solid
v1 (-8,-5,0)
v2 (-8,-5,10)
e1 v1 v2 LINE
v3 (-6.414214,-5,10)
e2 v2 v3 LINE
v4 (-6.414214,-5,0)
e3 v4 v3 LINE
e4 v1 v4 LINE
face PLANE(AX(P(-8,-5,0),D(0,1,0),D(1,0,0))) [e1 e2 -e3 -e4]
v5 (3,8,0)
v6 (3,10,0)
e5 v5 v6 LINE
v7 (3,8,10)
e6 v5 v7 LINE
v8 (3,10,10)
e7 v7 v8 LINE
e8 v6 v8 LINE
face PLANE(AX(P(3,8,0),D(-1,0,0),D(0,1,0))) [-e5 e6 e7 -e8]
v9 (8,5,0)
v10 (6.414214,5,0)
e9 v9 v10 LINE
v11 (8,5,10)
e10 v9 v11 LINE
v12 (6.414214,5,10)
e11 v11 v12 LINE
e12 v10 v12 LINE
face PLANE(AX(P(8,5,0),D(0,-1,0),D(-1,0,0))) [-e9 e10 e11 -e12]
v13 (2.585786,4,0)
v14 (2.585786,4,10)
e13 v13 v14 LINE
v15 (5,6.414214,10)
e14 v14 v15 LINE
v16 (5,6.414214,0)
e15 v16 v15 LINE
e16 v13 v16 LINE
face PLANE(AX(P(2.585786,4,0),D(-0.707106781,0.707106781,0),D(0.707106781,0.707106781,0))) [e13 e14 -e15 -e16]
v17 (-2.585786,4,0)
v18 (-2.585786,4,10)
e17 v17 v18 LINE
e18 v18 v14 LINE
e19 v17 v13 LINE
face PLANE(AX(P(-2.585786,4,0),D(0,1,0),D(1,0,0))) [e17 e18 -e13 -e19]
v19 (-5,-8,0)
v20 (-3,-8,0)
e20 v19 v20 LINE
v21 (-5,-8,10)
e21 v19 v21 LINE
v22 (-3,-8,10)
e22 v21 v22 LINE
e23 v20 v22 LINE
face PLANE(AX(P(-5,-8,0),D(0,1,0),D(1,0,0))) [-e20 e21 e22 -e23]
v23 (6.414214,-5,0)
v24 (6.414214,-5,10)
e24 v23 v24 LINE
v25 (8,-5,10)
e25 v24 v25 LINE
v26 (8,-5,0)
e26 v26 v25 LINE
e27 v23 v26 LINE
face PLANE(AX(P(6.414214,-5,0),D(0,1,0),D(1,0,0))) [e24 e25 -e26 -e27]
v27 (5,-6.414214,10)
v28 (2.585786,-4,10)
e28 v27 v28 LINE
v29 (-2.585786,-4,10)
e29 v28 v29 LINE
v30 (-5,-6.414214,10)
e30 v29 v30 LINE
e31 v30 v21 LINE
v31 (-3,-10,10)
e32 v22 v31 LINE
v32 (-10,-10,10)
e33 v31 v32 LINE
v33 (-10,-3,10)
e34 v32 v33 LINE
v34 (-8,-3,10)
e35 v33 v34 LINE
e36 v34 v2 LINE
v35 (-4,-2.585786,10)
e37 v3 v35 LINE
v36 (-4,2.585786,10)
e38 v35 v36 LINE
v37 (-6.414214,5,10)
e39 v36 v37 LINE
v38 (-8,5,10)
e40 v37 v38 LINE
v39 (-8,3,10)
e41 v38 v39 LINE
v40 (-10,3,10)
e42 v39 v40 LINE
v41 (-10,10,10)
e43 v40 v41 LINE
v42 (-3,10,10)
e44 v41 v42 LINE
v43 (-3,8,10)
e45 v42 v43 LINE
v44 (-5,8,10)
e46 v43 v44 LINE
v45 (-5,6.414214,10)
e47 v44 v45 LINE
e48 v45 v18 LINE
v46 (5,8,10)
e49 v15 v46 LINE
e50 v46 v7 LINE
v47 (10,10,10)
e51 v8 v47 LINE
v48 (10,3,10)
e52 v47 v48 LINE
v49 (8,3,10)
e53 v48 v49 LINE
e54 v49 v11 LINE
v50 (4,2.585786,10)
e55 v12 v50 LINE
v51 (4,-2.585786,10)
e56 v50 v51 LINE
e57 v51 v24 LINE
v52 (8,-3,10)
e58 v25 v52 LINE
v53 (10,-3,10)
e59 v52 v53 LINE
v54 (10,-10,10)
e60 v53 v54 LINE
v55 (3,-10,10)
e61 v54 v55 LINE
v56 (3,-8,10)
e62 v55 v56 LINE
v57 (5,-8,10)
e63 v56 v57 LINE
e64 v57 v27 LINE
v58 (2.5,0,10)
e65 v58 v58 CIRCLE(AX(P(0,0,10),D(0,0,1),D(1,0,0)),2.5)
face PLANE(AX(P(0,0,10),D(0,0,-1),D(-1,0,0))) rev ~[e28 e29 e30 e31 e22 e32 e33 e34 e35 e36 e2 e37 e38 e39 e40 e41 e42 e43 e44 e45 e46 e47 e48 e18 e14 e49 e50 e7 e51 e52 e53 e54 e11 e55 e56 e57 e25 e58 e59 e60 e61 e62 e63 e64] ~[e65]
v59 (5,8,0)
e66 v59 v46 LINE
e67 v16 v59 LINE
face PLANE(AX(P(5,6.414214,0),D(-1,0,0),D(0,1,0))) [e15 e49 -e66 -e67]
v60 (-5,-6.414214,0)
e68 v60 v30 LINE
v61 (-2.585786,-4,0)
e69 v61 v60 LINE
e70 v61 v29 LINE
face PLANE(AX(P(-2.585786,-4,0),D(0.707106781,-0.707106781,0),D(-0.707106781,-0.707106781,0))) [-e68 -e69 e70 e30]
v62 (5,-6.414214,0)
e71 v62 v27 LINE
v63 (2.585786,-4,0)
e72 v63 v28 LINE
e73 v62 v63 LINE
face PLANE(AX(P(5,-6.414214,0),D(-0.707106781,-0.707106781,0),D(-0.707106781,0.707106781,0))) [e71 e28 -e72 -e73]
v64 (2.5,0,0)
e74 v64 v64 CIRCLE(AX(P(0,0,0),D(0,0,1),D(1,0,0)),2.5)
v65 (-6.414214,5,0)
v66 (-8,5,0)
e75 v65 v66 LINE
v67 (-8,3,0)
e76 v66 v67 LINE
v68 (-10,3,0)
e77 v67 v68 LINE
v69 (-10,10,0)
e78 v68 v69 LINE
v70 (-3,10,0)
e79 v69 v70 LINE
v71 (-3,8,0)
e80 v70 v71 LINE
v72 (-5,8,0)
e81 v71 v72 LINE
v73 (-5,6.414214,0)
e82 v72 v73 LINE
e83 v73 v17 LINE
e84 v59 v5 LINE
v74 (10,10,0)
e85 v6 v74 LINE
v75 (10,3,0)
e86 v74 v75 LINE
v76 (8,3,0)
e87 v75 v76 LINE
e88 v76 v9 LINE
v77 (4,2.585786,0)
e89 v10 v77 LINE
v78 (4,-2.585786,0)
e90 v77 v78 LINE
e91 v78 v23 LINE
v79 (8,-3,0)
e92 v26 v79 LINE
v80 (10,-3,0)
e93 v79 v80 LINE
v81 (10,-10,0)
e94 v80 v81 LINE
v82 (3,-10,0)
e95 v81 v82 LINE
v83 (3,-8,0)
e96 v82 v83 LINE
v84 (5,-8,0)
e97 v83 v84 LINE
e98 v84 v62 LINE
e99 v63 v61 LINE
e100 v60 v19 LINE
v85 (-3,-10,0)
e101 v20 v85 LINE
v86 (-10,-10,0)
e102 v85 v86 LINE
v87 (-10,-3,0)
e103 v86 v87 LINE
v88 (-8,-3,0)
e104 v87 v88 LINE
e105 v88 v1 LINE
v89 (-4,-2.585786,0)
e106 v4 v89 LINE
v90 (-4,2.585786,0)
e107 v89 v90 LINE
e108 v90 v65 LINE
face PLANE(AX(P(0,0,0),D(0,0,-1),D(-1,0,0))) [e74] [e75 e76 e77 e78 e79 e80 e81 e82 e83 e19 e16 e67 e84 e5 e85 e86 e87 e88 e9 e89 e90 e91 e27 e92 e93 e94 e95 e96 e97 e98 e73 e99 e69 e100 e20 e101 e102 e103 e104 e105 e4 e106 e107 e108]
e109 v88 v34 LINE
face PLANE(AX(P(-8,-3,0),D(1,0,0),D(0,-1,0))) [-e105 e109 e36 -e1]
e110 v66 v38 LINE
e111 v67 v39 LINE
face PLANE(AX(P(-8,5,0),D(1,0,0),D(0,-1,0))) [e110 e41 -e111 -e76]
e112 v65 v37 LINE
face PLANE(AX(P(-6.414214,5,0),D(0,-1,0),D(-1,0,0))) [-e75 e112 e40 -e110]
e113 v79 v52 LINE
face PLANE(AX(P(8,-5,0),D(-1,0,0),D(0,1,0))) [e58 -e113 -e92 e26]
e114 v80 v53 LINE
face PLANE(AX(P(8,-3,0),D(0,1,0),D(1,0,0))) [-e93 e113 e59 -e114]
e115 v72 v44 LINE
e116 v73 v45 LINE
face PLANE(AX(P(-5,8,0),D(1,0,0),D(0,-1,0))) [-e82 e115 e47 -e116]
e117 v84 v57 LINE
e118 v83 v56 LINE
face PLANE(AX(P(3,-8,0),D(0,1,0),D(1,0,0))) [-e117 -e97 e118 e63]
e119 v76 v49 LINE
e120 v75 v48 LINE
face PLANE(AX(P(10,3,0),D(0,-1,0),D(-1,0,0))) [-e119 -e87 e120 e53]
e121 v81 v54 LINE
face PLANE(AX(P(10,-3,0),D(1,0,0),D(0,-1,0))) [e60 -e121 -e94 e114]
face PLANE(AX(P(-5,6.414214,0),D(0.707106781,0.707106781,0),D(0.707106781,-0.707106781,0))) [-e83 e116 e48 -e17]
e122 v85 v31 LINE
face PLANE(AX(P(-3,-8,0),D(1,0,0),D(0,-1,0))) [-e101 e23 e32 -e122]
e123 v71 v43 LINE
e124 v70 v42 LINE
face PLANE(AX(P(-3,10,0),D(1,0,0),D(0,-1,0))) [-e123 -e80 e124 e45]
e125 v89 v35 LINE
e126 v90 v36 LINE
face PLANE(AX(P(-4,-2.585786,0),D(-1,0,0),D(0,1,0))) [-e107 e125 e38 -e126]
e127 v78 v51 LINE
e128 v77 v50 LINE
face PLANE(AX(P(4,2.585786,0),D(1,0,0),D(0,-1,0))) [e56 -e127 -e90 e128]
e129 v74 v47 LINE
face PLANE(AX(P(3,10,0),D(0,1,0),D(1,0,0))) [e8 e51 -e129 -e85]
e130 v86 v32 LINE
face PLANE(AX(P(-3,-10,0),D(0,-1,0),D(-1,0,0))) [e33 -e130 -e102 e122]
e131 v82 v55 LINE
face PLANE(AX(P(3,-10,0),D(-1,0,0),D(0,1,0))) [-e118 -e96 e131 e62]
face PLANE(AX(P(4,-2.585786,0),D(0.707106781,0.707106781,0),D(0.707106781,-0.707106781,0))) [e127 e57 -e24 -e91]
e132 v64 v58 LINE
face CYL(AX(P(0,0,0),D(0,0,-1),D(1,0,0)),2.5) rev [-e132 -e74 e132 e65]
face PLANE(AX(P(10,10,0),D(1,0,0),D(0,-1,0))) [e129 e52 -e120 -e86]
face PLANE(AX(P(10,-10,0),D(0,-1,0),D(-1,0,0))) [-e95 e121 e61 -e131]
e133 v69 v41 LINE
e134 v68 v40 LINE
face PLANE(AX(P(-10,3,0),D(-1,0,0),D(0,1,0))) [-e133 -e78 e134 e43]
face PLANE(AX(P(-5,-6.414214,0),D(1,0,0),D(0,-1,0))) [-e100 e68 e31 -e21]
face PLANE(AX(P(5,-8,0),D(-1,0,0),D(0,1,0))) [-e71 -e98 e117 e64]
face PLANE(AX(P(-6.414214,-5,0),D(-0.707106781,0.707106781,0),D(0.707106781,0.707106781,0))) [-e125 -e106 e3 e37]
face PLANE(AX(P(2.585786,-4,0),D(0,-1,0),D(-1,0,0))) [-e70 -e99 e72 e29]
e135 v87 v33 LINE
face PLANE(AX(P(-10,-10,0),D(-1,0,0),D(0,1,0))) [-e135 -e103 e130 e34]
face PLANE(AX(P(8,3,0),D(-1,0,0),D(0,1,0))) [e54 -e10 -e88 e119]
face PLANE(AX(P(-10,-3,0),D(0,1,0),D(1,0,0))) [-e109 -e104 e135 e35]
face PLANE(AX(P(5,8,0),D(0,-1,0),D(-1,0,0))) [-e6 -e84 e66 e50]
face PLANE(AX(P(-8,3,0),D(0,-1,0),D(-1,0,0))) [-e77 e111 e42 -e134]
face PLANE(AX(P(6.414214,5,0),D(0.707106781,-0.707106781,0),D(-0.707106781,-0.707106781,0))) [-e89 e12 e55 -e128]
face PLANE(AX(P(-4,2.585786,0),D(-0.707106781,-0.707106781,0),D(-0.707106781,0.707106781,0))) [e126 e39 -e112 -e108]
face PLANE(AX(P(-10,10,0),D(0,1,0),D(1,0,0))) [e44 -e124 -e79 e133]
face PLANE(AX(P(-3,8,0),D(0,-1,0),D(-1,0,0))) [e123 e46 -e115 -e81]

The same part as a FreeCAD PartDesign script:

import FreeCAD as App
import Part
import Sketcher
from FreeCAD import Vector


def add_polygon(sketch, points):
    """Adds a closed chain of lines whose ends are joined by coincident constraints."""
    first, n = sketch.GeometryCount, len(points)
    for a, b in zip(points, points[1:] + points[:1]):
        sketch.addGeometry(Part.LineSegment(App.Vector(*a, 0), App.Vector(*b, 0)), False)
    for i in range(n):
        sketch.addConstraint(Sketcher.Constraint("Coincident", first + i, 2, first + (i + 1) % n, 1))

doc = App.newDocument("Part")
body = doc.addObject("PartDesign::Body", "Body")

# Sketch on XY plane
sketch1 = body.newObject("Sketcher::SketchObject", "Sketch")
sketch1.AttachmentSupport = (doc.getObject("XY_Plane"), [""])
sketch1.MapMode = "FlatFace"
add_polygon(sketch1, [(3, -8), (3, -10), (10, -10), (10, -3), (8, -3), (8, -5), (6.4, -5), (4, -2.6), (4, 2.6), (6.4, 5), (8, 5), (8, 3), (10, 3), (10, 10), (3, 10), (3, 8), (5, 8), (5, 6.4), (2.6, 4), (-2.6, 4), (-5, 6.4), (-5, 8), (-3, 8), (-3, 10), (-10, 10), (-10, 3), (-8, 3), (-8, 5), (-6.4, 5), (-4, 2.6), (-4, -2.6), (-6.4, -5), (-8, -5), (-8, -3), (-10, -3), (-10, -10), (-3, -10), (-3, -8), (-5, -8), (-5, -6.4), (-2.6, -4), (2.6, -4), (5, -6.4), (5, -8)])  # lines 0-43
sketch1.addGeometry(Part.Circle(Vector(0, 0, 0), Vector(0, 0, 1), 2.5), False)  # 44
sketch1.addConstraint(Sketcher.Constraint("Vertical", 0))
sketch1.addConstraint(Sketcher.Constraint("Horizontal", 1))
sketch1.addConstraint(Sketcher.Constraint("Vertical", 2))
sketch1.addConstraint(Sketcher.Constraint("Horizontal", 3))
sketch1.addConstraint(Sketcher.Constraint("Vertical", 4))
sketch1.addConstraint(Sketcher.Constraint("Horizontal", 5))
sketch1.addConstraint(Sketcher.Constraint("Vertical", 7))
sketch1.addConstraint(Sketcher.Constraint("Horizontal", 9))
sketch1.addConstraint(Sketcher.Constraint("Vertical", 10))
sketch1.addConstraint(Sketcher.Constraint("Horizontal", 11))
sketch1.addConstraint(Sketcher.Constraint("Vertical", 12))
sketch1.addConstraint(Sketcher.Constraint("Horizontal", 13))
sketch1.addConstraint(Sketcher.Constraint("Vertical", 14))
sketch1.addConstraint(Sketcher.Constraint("Horizontal", 15))
sketch1.addConstraint(Sketcher.Constraint("Vertical", 16))
sketch1.addConstraint(Sketcher.Constraint("Horizontal", 18))
sketch1.addConstraint(Sketcher.Constraint("Vertical", 20))
sketch1.addConstraint(Sketcher.Constraint("Horizontal", 21))
sketch1.addConstraint(Sketcher.Constraint("Vertical", 22))
sketch1.addConstraint(Sketcher.Constraint("Horizontal", 23))
sketch1.addConstraint(Sketcher.Constraint("Vertical", 24))
sketch1.addConstraint(Sketcher.Constraint("Horizontal", 25))
sketch1.addConstraint(Sketcher.Constraint("Vertical", 26))
sketch1.addConstraint(Sketcher.Constraint("Horizontal", 27))
sketch1.addConstraint(Sketcher.Constraint("Vertical", 29))
sketch1.addConstraint(Sketcher.Constraint("Horizontal", 31))
sketch1.addConstraint(Sketcher.Constraint("Vertical", 32))
sketch1.addConstraint(Sketcher.Constraint("Horizontal", 33))
sketch1.addConstraint(Sketcher.Constraint("Vertical", 34))
sketch1.addConstraint(Sketcher.Constraint("Horizontal", 35))
sketch1.addConstraint(Sketcher.Constraint("Vertical", 36))
sketch1.addConstraint(Sketcher.Constraint("Horizontal", 37))
sketch1.addConstraint(Sketcher.Constraint("Vertical", 38))
sketch1.addConstraint(Sketcher.Constraint("Horizontal", 40))
sketch1.addConstraint(Sketcher.Constraint("Vertical", 42))
sketch1.addConstraint(Sketcher.Constraint("Horizontal", 43))
sketch1.addConstraint(Sketcher.Constraint("Coincident", 44, 3, -1, 1))
sketch1.addConstraint(Sketcher.Constraint("Symmetric", 0, 2, 22, 2, -1, 1))
sketch1.addConstraint(Sketcher.Constraint("Symmetric", 2, 2, 24, 2, -1, 1))
sketch1.addConstraint(Sketcher.Constraint("Symmetric", 4, 2, 26, 2, -1, 1))
sketch1.addConstraint(Sketcher.Constraint("Symmetric", 6, 2, 28, 2, -1, 1))
sketch1.addConstraint(Sketcher.Constraint("Symmetric", 8, 2, 30, 2, -1, 1))
sketch1.addConstraint(Sketcher.Constraint("Symmetric", 10, 2, 32, 2, -1, 1))
sketch1.addConstraint(Sketcher.Constraint("Symmetric", 12, 2, 34, 2, -1, 1))
sketch1.addConstraint(Sketcher.Constraint("Symmetric", 14, 2, 36, 2, -1, 1))
sketch1.addConstraint(Sketcher.Constraint("Symmetric", 16, 2, 38, 2, -1, 1))
sketch1.addConstraint(Sketcher.Constraint("Symmetric", 17, 2, 39, 2, -1, 1))
sketch1.addConstraint(Sketcher.Constraint("Symmetric", 19, 2, 41, 2, -1, 1))
sketch1.addConstraint(Sketcher.Constraint("Symmetric", 16, 2, 19, 2, -2))
sketch1.addConstraint(Sketcher.Constraint("Symmetric", 14, 2, 21, 2, -2))
sketch1.addConstraint(Sketcher.Constraint("Symmetric", 12, 2, 23, 2, -2))
sketch1.addConstraint(Sketcher.Constraint("Symmetric", 10, 2, 25, 2, -2))
sketch1.addConstraint(Sketcher.Constraint("Symmetric", 8, 2, 27, 2, -2))
sketch1.addConstraint(Sketcher.Constraint("Perpendicular", 6, 8))
sketch1.addConstraint(Sketcher.Constraint("Parallel", 8, 17))
sketch1.addConstraint(Sketcher.Constraint("Perpendicular", 17, 19))
sketch1.addConstraint(Sketcher.Constraint("Parallel", 19, 28))
sketch1.addConstraint(Sketcher.Constraint("Perpendicular", 28, 30))
sketch1.addConstraint(Sketcher.Constraint("Perpendicular", 39, 41))
sketch1.addConstraint(Sketcher.Constraint("Horizontal", 7, 2, 28, 2))
sketch1.addConstraint(Sketcher.Constraint("Horizontal", 37, 2, 42, 2))
sketch1.addConstraint(Sketcher.Constraint("Equal", 11, 15))
sketch1.addConstraint(Sketcher.Constraint("Equal", 43, 0))
sketch1.addConstraint(Sketcher.Constraint("Equal", 35, 2))
sketch1.addConstraint(Sketcher.Constraint("Equal", 0, 4))
sketch1.addConstraint(Sketcher.Constraint("Equal", 40, 7))
sketch1.addConstraint(Sketcher.Constraint("Equal", 31, 16))
sketch1.addConstraint(Sketcher.Constraint("Equal", 8, 17))
sketch1.addConstraint(Sketcher.Constraint("Diameter", 44, 5.0))
sketch1.addConstraint(Sketcher.Constraint("DistanceX", 1, 1, 1, 2, 7.0))
sketch1.addConstraint(Sketcher.Constraint("DistanceX", 3, 2, 3, 1, 2.0))
sketch1.addConstraint(Sketcher.Constraint("DistanceX", -1, 1, 0, 2, 3.0))
sketch1.addConstraint(Sketcher.Constraint("DistanceX", -1, 1, 6, 2, 4.0))
sketch1.addConstraint(Sketcher.Constraint("DistanceX", 5, 2, 5, 1, 1.585786))
pad1 = body.newObject("PartDesign::Pad", "Pad")
pad1.Profile = sketch1
pad1.Length = 10

doc.recompute()
